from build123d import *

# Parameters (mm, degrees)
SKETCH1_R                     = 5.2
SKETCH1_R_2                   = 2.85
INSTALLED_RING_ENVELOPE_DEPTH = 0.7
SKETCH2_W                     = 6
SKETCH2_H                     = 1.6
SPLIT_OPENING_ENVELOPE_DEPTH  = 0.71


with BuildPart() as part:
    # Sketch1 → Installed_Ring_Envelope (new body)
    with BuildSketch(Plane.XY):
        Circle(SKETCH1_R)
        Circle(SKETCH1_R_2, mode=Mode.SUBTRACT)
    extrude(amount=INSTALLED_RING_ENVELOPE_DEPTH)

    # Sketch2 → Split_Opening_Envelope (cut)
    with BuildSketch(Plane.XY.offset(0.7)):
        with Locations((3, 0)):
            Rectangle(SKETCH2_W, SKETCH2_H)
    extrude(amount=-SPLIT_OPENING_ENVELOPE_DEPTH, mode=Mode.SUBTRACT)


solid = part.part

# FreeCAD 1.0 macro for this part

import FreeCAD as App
import Part
import Sketcher

V = App.Vector
Q = App.Units.Quantity


def add_polygon(sketch, points):
    """Adds a closed chain of lines whose ends are joined by coincident constraints."""
    first, n = sketch.GeometryCount, len(points)
    for a, b in zip(points, points[1:] + points[:1]):
        sketch.addGeometry(Part.LineSegment(App.Vector(*a, 0), App.Vector(*b, 0)), False)
    for i in range(n):
        sketch.addConstraint(Sketcher.Constraint("Coincident", first + i, 2, first + (i + 1) % n, 1))

doc = App.newDocument("Part")
body = doc.addObject("PartDesign::Body", "Body")

sketch1 = body.newObject("Sketcher::SketchObject", "Sketch")
sketch1.AttachmentSupport = (doc.getObject("XY_Plane"), [""])
sketch1.MapMode = "FlatFace"
sketch1.addGeometry(Part.Circle(V(0, 0, 0), V(0, 0, 1), 5.2), False)
sketch1.addGeometry(Part.Circle(V(0, 0, 0), V(0, 0, 1), 2.9), False)
sketch1.addConstraint(Sketcher.Constraint("Coincident", 0, 3, -1, 1))
sketch1.addConstraint(Sketcher.Constraint("Coincident", 1, 3, -1, 1))
sketch1.addConstraint(Sketcher.Constraint("Diameter", 0, Q("10.4 mm")))
sketch1.addConstraint(Sketcher.Constraint("Diameter", 1, Q("5.7 mm")))
pad1 = body.newObject("PartDesign::Pad", "Pad")
pad1.Profile = sketch1
pad1.Length = 0.7

sketch2 = body.newObject("Sketcher::SketchObject", "Sketch001")
sketch2.AttachmentSupport = (doc.getObject("XY_Plane"), [""])
sketch2.MapMode = "FlatFace"
sketch2.AttachmentOffset = App.Placement(V(0, 0, 0.7), App.Rotation())
add_polygon(sketch2, [(0, 0.8), (0, -0.8), (6, -0.8), (6, 0.8)])
sketch2.addConstraint(Sketcher.Constraint("Vertical", 0))
sketch2.addConstraint(Sketcher.Constraint("Horizontal", 1))
sketch2.addConstraint(Sketcher.Constraint("Vertical", 2))
sketch2.addConstraint(Sketcher.Constraint("Horizontal", 3))
sketch2.addConstraint(Sketcher.Constraint("Symmetric", 0, 2, 3, 2, -1, 1))
sketch2.addConstraint(Sketcher.Constraint("DistanceX", 1, 1, 1, 2, Q("6 mm")))
sketch2.addConstraint(Sketcher.Constraint("DistanceY", 0, 2, 0, 1, Q("1.6 mm")))
pocket1 = body.newObject("PartDesign::Pocket", "Pocket")
pocket1.Profile = sketch2
pocket1.Length = 0.71

doc.recompute()
